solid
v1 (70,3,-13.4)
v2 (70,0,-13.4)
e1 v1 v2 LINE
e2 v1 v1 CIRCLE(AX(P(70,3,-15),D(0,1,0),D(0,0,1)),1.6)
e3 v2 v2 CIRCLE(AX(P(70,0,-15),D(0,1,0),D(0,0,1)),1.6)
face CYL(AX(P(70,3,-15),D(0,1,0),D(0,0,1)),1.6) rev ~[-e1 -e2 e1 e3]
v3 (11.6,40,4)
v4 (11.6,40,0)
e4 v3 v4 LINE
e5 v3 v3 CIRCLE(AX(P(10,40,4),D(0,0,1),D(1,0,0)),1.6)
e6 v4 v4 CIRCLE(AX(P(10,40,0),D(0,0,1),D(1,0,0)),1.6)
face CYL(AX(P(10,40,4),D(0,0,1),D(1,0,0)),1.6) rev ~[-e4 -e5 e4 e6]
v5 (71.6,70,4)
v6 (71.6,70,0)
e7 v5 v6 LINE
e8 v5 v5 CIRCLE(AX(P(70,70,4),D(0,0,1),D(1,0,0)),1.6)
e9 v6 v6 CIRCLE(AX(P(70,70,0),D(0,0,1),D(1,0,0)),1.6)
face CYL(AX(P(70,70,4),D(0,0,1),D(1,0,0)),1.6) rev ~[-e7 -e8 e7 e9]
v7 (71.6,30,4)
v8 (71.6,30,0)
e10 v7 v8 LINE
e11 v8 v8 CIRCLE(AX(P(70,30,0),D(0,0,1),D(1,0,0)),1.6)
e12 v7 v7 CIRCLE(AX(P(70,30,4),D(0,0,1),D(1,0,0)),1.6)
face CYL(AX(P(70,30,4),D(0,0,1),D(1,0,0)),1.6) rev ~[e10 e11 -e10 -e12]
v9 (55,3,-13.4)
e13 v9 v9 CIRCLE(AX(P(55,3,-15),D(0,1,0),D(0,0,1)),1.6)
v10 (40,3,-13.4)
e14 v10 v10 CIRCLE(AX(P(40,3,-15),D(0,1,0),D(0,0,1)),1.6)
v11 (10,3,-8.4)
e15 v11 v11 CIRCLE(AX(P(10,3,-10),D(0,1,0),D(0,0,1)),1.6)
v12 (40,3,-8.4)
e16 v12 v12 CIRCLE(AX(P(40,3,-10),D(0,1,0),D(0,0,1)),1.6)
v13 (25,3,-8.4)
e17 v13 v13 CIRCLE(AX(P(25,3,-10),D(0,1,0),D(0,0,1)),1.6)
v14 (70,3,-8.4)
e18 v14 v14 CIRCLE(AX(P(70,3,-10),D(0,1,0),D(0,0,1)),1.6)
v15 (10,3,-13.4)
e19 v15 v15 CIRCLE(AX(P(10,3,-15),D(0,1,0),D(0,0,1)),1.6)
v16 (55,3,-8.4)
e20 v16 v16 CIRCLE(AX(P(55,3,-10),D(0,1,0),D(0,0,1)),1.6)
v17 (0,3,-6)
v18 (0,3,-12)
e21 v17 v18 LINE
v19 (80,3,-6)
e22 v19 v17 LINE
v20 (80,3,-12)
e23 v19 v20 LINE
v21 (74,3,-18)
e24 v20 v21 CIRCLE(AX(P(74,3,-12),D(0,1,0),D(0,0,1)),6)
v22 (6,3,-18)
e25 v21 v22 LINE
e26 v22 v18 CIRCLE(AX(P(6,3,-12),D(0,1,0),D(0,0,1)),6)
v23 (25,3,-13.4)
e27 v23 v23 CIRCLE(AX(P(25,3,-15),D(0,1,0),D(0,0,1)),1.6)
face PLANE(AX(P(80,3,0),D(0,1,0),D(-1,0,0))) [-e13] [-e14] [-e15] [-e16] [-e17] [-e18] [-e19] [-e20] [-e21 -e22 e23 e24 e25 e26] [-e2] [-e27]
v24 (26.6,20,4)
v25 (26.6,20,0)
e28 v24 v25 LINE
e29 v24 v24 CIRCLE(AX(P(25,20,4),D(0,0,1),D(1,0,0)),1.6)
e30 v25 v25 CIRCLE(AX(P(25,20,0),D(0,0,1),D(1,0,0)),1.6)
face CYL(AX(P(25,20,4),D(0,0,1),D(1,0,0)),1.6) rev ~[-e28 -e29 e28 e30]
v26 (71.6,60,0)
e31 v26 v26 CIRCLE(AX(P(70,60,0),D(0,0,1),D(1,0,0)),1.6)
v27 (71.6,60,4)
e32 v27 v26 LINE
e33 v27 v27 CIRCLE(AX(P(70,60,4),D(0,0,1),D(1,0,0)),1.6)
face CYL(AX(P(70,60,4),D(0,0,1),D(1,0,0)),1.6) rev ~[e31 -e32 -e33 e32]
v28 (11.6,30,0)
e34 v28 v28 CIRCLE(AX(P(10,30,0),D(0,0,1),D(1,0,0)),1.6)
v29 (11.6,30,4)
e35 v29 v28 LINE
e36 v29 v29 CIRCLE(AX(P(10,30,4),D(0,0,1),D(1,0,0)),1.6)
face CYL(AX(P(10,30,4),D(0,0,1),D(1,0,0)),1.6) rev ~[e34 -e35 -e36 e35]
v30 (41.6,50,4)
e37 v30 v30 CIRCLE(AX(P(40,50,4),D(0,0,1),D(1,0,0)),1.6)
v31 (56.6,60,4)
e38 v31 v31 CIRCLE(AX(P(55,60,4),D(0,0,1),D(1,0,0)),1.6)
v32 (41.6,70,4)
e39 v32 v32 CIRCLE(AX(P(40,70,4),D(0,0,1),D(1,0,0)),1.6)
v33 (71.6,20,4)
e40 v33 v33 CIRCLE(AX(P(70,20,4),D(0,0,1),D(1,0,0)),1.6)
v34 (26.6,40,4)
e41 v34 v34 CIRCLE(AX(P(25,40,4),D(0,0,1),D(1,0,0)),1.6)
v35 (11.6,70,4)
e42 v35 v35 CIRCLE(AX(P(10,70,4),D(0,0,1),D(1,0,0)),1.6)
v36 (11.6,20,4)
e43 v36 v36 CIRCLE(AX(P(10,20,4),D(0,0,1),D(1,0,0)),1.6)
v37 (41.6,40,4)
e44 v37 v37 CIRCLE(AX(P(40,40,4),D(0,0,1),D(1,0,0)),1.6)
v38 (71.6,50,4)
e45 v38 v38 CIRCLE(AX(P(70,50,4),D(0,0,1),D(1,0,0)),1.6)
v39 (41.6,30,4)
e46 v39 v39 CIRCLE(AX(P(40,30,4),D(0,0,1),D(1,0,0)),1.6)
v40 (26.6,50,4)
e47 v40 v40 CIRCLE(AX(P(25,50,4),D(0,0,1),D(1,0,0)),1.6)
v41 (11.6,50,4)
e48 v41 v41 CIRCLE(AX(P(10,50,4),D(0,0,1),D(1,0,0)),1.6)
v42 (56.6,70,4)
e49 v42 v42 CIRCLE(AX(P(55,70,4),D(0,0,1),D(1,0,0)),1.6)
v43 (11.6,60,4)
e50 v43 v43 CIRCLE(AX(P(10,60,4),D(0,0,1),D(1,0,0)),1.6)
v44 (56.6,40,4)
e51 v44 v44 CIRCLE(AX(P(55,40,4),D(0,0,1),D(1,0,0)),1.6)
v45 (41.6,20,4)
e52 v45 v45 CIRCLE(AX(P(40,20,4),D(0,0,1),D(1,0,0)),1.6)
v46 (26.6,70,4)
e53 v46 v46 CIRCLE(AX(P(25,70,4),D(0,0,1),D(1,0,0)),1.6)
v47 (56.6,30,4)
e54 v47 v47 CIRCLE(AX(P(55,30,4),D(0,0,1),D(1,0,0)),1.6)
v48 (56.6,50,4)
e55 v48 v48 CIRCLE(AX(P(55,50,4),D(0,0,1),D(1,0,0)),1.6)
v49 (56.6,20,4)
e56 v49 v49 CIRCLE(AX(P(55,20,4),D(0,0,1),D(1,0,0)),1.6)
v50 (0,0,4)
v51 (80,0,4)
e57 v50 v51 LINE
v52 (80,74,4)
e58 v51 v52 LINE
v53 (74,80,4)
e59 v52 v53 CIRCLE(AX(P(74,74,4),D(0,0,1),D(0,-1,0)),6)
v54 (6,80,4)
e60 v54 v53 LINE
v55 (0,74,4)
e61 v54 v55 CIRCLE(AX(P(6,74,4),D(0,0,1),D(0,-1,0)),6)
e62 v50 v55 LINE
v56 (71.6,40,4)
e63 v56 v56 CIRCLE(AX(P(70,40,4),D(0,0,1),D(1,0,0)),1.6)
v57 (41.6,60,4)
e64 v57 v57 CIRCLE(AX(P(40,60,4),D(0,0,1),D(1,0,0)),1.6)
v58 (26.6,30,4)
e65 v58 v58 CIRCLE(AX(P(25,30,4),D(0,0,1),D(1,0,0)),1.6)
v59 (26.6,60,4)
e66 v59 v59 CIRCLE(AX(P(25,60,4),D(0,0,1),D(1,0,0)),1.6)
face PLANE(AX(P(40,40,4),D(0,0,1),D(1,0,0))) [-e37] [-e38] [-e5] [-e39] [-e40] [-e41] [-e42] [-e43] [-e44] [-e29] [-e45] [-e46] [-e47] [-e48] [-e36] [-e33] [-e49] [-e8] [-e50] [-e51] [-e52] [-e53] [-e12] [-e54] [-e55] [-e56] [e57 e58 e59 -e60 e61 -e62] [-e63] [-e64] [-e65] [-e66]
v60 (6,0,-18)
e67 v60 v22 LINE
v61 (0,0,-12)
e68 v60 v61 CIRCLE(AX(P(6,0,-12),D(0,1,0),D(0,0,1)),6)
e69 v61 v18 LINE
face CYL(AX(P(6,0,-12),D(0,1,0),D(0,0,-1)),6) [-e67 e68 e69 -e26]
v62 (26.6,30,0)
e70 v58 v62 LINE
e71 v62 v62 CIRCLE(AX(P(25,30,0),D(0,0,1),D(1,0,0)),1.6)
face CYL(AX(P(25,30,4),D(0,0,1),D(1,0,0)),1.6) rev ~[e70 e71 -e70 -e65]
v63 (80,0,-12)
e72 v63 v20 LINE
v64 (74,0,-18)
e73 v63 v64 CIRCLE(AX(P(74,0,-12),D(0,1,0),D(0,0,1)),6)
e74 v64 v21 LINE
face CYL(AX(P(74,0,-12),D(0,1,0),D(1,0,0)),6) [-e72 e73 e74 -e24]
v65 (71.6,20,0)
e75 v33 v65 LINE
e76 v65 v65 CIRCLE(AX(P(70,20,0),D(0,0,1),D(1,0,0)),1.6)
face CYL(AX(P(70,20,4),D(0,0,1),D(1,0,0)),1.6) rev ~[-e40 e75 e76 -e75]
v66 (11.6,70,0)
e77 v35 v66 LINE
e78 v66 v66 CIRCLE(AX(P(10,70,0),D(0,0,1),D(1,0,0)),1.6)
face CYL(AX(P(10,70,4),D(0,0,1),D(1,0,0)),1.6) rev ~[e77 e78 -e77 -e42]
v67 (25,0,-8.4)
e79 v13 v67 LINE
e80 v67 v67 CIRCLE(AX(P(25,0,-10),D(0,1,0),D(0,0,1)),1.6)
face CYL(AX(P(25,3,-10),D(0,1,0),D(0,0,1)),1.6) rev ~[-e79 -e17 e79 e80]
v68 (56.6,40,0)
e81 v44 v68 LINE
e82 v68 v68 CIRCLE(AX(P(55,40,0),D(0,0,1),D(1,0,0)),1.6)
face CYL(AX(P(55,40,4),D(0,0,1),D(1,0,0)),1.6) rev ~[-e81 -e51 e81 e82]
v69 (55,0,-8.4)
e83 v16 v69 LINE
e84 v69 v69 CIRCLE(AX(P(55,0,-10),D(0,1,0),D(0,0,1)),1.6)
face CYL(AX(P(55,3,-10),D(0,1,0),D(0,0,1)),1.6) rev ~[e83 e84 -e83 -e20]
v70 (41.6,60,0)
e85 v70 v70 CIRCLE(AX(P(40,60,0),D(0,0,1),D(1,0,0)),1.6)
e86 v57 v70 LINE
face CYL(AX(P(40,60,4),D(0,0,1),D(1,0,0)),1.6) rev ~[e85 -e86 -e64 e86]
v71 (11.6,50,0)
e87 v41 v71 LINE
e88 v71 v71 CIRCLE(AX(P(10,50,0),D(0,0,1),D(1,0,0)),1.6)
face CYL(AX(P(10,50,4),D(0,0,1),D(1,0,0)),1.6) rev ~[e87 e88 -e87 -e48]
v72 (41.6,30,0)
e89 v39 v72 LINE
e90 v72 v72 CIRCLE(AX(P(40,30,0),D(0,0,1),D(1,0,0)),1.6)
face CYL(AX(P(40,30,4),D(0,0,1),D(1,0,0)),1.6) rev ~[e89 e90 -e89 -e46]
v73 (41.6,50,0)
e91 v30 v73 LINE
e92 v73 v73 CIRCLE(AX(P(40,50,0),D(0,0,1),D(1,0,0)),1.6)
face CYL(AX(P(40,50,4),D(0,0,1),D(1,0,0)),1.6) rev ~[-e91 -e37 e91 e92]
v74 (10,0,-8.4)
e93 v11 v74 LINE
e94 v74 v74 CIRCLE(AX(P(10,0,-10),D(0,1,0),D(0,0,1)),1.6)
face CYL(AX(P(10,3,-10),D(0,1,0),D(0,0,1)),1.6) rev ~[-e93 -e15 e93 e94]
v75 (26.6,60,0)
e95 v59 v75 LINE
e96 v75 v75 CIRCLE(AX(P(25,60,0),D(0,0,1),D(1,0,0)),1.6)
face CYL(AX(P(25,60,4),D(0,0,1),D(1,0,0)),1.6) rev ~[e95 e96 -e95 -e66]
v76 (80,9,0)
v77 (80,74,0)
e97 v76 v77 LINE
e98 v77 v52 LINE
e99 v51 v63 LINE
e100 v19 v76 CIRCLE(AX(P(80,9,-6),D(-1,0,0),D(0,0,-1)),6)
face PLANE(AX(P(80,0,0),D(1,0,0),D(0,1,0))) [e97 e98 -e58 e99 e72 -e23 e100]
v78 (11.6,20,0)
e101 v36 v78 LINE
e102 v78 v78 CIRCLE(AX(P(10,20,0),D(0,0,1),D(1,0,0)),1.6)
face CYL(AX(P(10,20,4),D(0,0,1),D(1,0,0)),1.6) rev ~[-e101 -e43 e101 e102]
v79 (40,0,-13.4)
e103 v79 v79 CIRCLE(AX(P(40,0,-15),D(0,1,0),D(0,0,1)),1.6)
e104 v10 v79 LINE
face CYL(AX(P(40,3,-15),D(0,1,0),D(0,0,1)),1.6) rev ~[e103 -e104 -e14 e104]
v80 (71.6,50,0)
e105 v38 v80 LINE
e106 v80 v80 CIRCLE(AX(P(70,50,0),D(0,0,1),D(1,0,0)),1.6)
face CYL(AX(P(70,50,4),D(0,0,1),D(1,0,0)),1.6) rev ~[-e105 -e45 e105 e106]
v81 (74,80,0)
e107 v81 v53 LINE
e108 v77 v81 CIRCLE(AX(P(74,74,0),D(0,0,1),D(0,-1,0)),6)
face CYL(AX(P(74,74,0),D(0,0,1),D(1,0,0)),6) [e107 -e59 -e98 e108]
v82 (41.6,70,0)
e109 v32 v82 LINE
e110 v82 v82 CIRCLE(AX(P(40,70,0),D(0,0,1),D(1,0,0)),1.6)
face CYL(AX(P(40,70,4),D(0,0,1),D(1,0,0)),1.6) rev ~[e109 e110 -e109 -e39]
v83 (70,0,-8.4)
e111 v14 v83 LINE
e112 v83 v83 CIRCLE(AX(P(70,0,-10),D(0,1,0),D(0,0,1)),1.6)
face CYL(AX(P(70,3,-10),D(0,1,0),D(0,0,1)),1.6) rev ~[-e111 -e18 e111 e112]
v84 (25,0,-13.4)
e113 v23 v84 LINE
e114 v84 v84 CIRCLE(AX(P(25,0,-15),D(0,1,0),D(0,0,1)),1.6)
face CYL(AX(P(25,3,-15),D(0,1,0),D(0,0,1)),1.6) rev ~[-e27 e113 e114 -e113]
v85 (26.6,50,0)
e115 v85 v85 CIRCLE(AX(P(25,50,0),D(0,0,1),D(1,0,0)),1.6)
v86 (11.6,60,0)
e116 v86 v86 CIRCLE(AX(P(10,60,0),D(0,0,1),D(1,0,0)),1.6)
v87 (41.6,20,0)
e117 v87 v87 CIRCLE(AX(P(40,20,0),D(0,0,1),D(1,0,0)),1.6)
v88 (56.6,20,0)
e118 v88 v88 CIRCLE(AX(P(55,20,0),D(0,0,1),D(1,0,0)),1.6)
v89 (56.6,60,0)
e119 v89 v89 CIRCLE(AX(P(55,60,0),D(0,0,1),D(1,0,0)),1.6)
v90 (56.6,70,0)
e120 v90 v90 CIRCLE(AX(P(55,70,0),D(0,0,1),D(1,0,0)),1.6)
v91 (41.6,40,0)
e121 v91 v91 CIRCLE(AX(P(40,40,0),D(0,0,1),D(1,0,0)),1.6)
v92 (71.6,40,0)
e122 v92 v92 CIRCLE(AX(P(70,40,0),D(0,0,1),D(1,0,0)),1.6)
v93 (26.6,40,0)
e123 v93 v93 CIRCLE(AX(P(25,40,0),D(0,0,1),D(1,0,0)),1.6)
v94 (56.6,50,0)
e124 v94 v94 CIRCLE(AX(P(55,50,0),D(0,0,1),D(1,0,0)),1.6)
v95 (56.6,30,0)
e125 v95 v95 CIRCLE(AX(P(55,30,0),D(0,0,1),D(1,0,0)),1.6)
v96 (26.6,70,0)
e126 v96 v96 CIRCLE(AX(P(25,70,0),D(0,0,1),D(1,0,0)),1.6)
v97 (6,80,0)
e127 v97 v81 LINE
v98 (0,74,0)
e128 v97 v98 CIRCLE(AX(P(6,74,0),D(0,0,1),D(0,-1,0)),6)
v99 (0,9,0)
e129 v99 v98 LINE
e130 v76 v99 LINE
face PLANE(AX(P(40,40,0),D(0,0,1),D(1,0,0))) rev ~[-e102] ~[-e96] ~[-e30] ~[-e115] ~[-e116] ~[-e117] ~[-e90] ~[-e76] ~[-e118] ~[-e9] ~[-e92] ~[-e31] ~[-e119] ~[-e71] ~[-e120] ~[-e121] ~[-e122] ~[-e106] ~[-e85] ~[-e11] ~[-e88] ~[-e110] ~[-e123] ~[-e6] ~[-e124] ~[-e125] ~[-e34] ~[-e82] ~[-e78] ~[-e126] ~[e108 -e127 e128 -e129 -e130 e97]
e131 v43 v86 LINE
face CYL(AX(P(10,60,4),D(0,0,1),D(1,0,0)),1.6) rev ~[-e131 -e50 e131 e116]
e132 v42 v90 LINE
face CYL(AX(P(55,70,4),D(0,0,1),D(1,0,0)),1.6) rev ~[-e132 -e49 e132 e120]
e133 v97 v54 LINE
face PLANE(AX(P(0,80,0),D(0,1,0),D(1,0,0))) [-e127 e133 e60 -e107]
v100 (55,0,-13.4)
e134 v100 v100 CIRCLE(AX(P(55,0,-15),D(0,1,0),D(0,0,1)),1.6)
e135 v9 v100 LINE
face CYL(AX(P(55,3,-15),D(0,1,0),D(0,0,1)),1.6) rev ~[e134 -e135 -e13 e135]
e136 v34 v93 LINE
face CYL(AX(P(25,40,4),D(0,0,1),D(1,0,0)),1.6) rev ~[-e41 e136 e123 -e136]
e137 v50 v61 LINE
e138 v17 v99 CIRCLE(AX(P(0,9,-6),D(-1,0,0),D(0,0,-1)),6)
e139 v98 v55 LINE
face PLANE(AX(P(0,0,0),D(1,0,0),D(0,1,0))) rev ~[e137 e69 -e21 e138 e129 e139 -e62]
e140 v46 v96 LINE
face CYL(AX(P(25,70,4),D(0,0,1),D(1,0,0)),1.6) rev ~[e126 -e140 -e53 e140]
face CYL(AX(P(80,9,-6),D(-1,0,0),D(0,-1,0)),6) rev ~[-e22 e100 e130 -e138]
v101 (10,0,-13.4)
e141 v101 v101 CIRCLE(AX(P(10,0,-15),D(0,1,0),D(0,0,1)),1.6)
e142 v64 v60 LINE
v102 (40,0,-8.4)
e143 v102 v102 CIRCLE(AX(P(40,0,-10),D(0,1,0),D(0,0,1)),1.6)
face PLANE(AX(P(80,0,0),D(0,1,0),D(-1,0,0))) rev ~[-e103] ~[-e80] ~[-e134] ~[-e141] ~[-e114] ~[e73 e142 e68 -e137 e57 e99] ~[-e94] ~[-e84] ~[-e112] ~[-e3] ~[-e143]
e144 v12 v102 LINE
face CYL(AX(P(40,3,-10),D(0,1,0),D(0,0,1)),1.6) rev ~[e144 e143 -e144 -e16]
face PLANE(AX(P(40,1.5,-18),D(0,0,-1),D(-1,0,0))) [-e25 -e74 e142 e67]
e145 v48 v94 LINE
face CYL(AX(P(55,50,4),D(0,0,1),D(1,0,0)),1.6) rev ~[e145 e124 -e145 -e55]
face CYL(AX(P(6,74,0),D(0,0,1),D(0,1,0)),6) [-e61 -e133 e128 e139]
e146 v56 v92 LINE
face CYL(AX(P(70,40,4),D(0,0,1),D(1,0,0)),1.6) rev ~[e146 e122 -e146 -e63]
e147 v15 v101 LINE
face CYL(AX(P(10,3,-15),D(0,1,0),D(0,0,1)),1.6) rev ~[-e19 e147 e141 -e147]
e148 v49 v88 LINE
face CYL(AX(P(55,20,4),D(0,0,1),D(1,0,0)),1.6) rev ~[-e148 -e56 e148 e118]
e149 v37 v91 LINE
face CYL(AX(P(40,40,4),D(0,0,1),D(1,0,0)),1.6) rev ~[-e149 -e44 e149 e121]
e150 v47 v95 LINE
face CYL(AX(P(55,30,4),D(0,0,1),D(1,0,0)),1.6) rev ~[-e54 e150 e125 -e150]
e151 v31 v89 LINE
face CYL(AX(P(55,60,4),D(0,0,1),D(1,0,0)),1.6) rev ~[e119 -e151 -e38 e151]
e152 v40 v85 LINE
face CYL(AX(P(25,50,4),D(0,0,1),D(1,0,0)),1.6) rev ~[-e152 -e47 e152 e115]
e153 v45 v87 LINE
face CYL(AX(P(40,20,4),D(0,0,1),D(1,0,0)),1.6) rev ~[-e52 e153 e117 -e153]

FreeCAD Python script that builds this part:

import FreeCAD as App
import Part
import Sketcher


def edges_at(feature, points):
    """Names of the edges that pass closest to the given points."""
    edges = feature.Shape.Edges
    near = lambda p: min(range(len(edges)), key=lambda i: edges[i].distToShape(Part.Vertex(*p))[0])
    return sorted({f"Edge{near(p) + 1}" for p in points})

doc = App.newDocument("Part")
params = doc.addObject("Spreadsheet::Sheet", "Params")
for row, (alias, value) in enumerate([
    ("sketch1_width", "80 mm"),
    ("pad1_length", "4 mm"),
    ("sketch2_diameter", "3.2 mm"),
    ("linearpattern_pitch", "10 mm"),
    ("sketch3_width", "80 mm"),
    ("sketch3_height", "3 mm"),
    ("pad2_length", "18 mm"),
    ("sketch4_diameter", "3.2 mm"),
    ("linearpattern2_pitch", "5 mm"),
    ("fillet_radius", "6 mm"),
    ("fillet2_radius", "6 mm"),
], start=1):
    params.set(f"A{row}", alias)
    params.set(f"B{row}", "=" + value)
    params.setAlias(f"B{row}", alias)

body = doc.addObject("PartDesign::Body", "Body")

sketch1 = body.newObject("Sketcher::SketchObject", "Sketch")
sketch1.AttachmentSupport = (doc.getObject("XY_Plane"), [""])
sketch1.MapMode = "FlatFace"
sketch1.addGeometry([
    Part.LineSegment(App.Vector(0, 80, 0), App.Vector(0, 0, 0)),
    Part.LineSegment(App.Vector(0, 0, 0), App.Vector(80, 0, 0)),
    Part.LineSegment(App.Vector(80, 0, 0), App.Vector(80, 80, 0)),
    Part.LineSegment(App.Vector(80, 80, 0), App.Vector(0, 80, 0)),
], False)
sketch1.addConstraint([
    Sketcher.Constraint("Coincident", 0, 2, 1, 1),
    Sketcher.Constraint("Coincident", 1, 2, 2, 1),
    Sketcher.Constraint("Coincident", 2, 2, 3, 1),
    Sketcher.Constraint("Coincident", 3, 2, 0, 1),
    Sketcher.Constraint("Vertical", 0),
    Sketcher.Constraint("Horizontal", 1),
    Sketcher.Constraint("Vertical", 2),
    Sketcher.Constraint("Horizontal", 3),
    Sketcher.Constraint("Coincident", 0, 2, -1, 1),
    Sketcher.Constraint("Equal", 3, 0),
    Sketcher.Constraint("DistanceX", 1, 1, 1, 2, 80.0),
])
sketch1.setExpression("Constraints[10]", "Params.sketch1_width")
pad1 = body.newObject("PartDesign::Pad", "Pad")
pad1.Profile = sketch1
pad1.setExpression("Length", "Params.pad1_length")

sketch2 = body.newObject("Sketcher::SketchObject", "Sketch001")
sketch2.AttachmentSupport = (doc.getObject("XY_Plane"), [""])
sketch2.MapMode = "FlatFace"
sketch2.AttachmentOffset = App.Placement(App.Vector(0, 0, 4), App.Rotation())
sketch2.addGeometry([
    Part.Circle(App.Vector(10, 70, 0), App.Vector(0, 0, 1), 1.6),
    Part.Circle(App.Vector(25, 70, 0), App.Vector(0, 0, 1), 1.6),
    Part.Circle(App.Vector(40, 70, 0), App.Vector(0, 0, 1), 1.6),
    Part.Circle(App.Vector(55, 70, 0), App.Vector(0, 0, 1), 1.6),
    Part.Circle(App.Vector(70, 70, 0), App.Vector(0, 0, 1), 1.6),
], False)
sketch2.addConstraint([
    Sketcher.Constraint("Equal", 0, 1),
    Sketcher.Constraint("Equal", 1, 2),
    Sketcher.Constraint("Equal", 2, 3),
    Sketcher.Constraint("Equal", 3, 4),
    Sketcher.Constraint("Horizontal", 0, 3, 1, 3),
    Sketcher.Constraint("Horizontal", 1, 3, 2, 3),
    Sketcher.Constraint("Horizontal", 2, 3, 3, 3),
    Sketcher.Constraint("Horizontal", 3, 3, 4, 3),
    Sketcher.Constraint("Diameter", 0, 3.2),
    Sketcher.Constraint("DistanceX", -1, 1, 0, 3, 10.0),
    Sketcher.Constraint("DistanceY", -1, 1, 0, 3, 70.0),
    Sketcher.Constraint("DistanceX", -1, 1, 1, 3, 25.0),
    Sketcher.Constraint("DistanceX", -1, 1, 2, 3, 40.0),
    Sketcher.Constraint("DistanceX", -1, 1, 3, 3, 55.0),
    Sketcher.Constraint("DistanceX", -1, 1, 4, 3, 70.0),
])
sketch2.setExpression("Constraints[8]", "Params.sketch2_diameter")
pocket1 = body.newObject("PartDesign::Pocket", "Pocket")
pocket1.Profile = sketch2
pocket1.Type = "ThroughAll"
doc.recompute()

linearpattern = body.newObject("PartDesign::LinearPattern", "LinearPattern")
linearpattern.Originals = [pocket1]
linearpattern.Direction = (doc.getObject("Y_Axis"), [""])
linearpattern.Mode = "offset"
linearpattern.setExpression("Offset", "Params.linearpattern_pitch")
linearpattern.Occurrences = 6
linearpattern.Reversed = True
body.Tip = linearpattern

sketch3 = body.newObject("Sketcher::SketchObject", "Sketch002")
sketch3.AttachmentSupport = (doc.getObject("XY_Plane"), [""])
sketch3.MapMode = "FlatFace"
sketch3.addGeometry([
    Part.LineSegment(App.Vector(80, 3, 0), App.Vector(80, 0, 0)),
    Part.LineSegment(App.Vector(80, 0, 0), App.Vector(0, 0, 0)),
    Part.LineSegment(App.Vector(0, 0, 0), App.Vector(0, 3, 0)),
    Part.LineSegment(App.Vector(0, 3, 0), App.Vector(80, 3, 0)),
], False)
sketch3.addConstraint([
    Sketcher.Constraint("Coincident", 0, 2, 1, 1),
    Sketcher.Constraint("Coincident", 1, 2, 2, 1),
    Sketcher.Constraint("Coincident", 2, 2, 3, 1),
    Sketcher.Constraint("Coincident", 3, 2, 0, 1),
    Sketcher.Constraint("Vertical", 0),
    Sketcher.Constraint("Horizontal", 1),
    Sketcher.Constraint("Vertical", 2),
    Sketcher.Constraint("Horizontal", 3),
    Sketcher.Constraint("Coincident", 1, 2, -1, 1),
    Sketcher.Constraint("DistanceX", 1, 2, 1, 1, 80.0),
    Sketcher.Constraint("DistanceY", 0, 2, 0, 1, 3.0),
])
sketch3.setExpression("Constraints[9]", "Params.sketch3_width")
sketch3.setExpression("Constraints[10]", "Params.sketch3_height")
pad2 = body.newObject("PartDesign::Pad", "Pad001")
pad2.Profile = sketch3
pad2.setExpression("Length", "Params.pad2_length")
pad2.Reversed = True

sketch4 = body.newObject("Sketcher::SketchObject", "Sketch003")
sketch4.AttachmentSupport = (doc.getObject("XZ_Plane"), [""])
sketch4.MapMode = "FlatFace"
sketch4.AttachmentOffset = App.Placement(App.Vector(0, 0, -3), App.Rotation())
sketch4.addGeometry([
    Part.Circle(App.Vector(70, -15, 0), App.Vector(0, 0, 1), 1.6),
    Part.Circle(App.Vector(55, -15, 0), App.Vector(0, 0, 1), 1.6),
    Part.Circle(App.Vector(40, -15, 0), App.Vector(0, 0, 1), 1.6),
    Part.Circle(App.Vector(25, -15, 0), App.Vector(0, 0, 1), 1.6),
    Part.Circle(App.Vector(10, -15, 0), App.Vector(0, 0, 1), 1.6),
], False)
sketch4.addConstraint([
    Sketcher.Constraint("Equal", 0, 1),
    Sketcher.Constraint("Equal", 1, 2),
    Sketcher.Constraint("Equal", 2, 3),
    Sketcher.Constraint("Equal", 3, 4),
    Sketcher.Constraint("Horizontal", 0, 3, 1, 3),
    Sketcher.Constraint("Horizontal", 1, 3, 2, 3),
    Sketcher.Constraint("Horizontal", 2, 3, 3, 3),
    Sketcher.Constraint("Horizontal", 3, 3, 4, 3),
    Sketcher.Constraint("Diameter", 0, 3.2),
    Sketcher.Constraint("DistanceX", -1, 1, 0, 3, 70.0),
    Sketcher.Constraint("DistanceY", 0, 3, -1, 1, 15.0),
    Sketcher.Constraint("DistanceX", -1, 1, 1, 3, 55.0),
    Sketcher.Constraint("DistanceX", -1, 1, 2, 3, 40.0),
    Sketcher.Constraint("DistanceX", -1, 1, 3, 3, 25.0),
    Sketcher.Constraint("DistanceX", -1, 1, 4, 3, 10.0),
])
sketch4.setExpression("Constraints[8]", "Params.sketch4_diameter")
pocket2 = body.newObject("PartDesign::Pocket", "Pocket001")
pocket2.Profile = sketch4
pocket2.Type = "ThroughAll"
pocket2.Reversed = True
doc.recompute()

linearpattern2 = body.newObject("PartDesign::LinearPattern", "LinearPattern001")
linearpattern2.Originals = [pocket2]
linearpattern2.Direction = (doc.getObject("Z_Axis"), [""])
linearpattern2.Mode = "offset"
linearpattern2.setExpression("Offset", "Params.linearpattern2_pitch")
linearpattern2.Occurrences = 2
body.Tip = linearpattern2
doc.recompute()

fillet = body.newObject("PartDesign::Fillet", "Fillet")
fillet.Base = (linearpattern2, edges_at(linearpattern2, [(40, 3, 0)]))
fillet.setExpression("Radius", "Params.fillet_radius")
doc.recompute()

fillet2 = body.newObject("PartDesign::Fillet", "Fillet001")
fillet2.Base = (fillet, edges_at(fillet, [
    (80, 1.5, -18),
    (0, 1.5, -18),
    (0, 80, 2),
    (80, 80, 2),
]))
fillet2.setExpression("Radius", "Params.fillet2_radius")

doc.recompute()
